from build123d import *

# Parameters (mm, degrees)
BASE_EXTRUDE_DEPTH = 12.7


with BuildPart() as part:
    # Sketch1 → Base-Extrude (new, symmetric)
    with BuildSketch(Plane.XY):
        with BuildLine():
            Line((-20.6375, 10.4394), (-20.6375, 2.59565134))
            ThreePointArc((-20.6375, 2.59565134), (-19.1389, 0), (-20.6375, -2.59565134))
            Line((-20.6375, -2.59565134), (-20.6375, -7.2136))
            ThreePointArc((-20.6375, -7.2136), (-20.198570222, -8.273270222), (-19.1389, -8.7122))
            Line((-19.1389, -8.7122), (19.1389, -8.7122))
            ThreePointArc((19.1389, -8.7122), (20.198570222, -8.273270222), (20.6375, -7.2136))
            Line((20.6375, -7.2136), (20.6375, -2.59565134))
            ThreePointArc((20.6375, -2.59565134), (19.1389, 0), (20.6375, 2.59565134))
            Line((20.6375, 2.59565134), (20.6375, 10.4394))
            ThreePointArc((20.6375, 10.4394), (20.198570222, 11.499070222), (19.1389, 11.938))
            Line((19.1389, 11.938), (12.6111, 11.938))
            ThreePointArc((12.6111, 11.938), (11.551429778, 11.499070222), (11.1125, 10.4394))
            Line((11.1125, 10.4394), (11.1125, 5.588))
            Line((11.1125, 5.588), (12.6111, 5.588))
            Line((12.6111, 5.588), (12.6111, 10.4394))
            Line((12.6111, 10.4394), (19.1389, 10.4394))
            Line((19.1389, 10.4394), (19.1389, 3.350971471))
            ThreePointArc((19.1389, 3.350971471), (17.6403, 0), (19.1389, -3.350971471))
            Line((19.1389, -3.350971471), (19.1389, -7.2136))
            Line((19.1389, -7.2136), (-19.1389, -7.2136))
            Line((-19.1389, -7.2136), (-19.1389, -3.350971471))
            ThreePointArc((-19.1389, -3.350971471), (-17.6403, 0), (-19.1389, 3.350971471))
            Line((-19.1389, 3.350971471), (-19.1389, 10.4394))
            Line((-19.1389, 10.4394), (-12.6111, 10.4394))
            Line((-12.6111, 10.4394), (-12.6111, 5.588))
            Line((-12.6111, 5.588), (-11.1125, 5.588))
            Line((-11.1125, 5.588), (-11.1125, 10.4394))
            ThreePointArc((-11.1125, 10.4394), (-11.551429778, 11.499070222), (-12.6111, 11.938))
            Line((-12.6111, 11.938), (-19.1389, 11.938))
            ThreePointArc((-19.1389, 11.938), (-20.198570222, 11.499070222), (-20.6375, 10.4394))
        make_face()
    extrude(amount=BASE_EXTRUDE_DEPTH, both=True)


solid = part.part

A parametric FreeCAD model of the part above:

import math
import FreeCAD as App
import Part
import Sketcher
Q = App.Units.Quantity

doc = App.newDocument("Part")
params = doc.addObject("Spreadsheet::Sheet", "Params")
for row, (alias, value) in enumerate([
    ("sketch1_radius", "0.118 in"),
    ("sketch1_radius2", "0.059 in"),
    ("sketch1_radius3", "0.177 in"),
    ("sketch1_width", "1.507 in"),
    ("sketch1_width2", "0.257 in"),
    ("pad1_length", "1 in"),
], start=1):
    params.set(f"A{row}", alias)
    params.set(f"B{row}", "=" + value)
    params.setAlias(f"B{row}", alias)

body = doc.addObject("PartDesign::Body", "Body")

# Sketch on XY plane
sketch1 = body.newObject("Sketcher::SketchObject", "Sketch")
sketch1.AttachmentSupport = (doc.getObject("XY_Plane"), [""])
sketch1.MapMode = "FlatFace"
sketch1.addGeometry([
    Part.LineSegment(App.Vector(-20.6, 10.4, 0), App.Vector(-20.6, 2.6, 0)),  # 0
    Part.ArcOfCircle(Part.Circle(App.Vector(-22.1, 0, 0), App.Vector(0, 0, 1), 3), math.radians(-60), math.radians(60)),  # 1
    Part.LineSegment(App.Vector(-20.6, -2.6, 0), App.Vector(-20.6, -7.2, 0)),  # 2
    Part.ArcOfCircle(Part.Circle(App.Vector(-19.1, -7.2, 0), App.Vector(0, 0, 1), 1.5), math.radians(-180), math.radians(-90)),  # 3
    Part.LineSegment(App.Vector(-19.1, -8.7, 0), App.Vector(19.1, -8.7, 0)),  # 4
    Part.ArcOfCircle(Part.Circle(App.Vector(19.1, -7.2, 0), App.Vector(0, 0, 1), 1.5), math.radians(-90), math.radians(0)),  # 5
    Part.LineSegment(App.Vector(20.6, -7.2, 0), App.Vector(20.6, -2.6, 0)),  # 6
    Part.ArcOfCircle(Part.Circle(App.Vector(22.1, 0, 0), App.Vector(0, 0, 1), 3), math.radians(120), math.radians(240)),  # 7
    Part.LineSegment(App.Vector(20.6, 2.6, 0), App.Vector(20.6, 10.4, 0)),  # 8
    Part.ArcOfCircle(Part.Circle(App.Vector(19.1, 10.4, 0), App.Vector(0, 0, 1), 1.5), math.radians(0), math.radians(90)),  # 9
    Part.LineSegment(App.Vector(19.1, 11.9, 0), App.Vector(12.6, 11.9, 0)),  # 10
    Part.ArcOfCircle(Part.Circle(App.Vector(12.6, 10.4, 0), App.Vector(0, 0, 1), 1.5), math.radians(90), math.radians(180)),  # 11
    Part.LineSegment(App.Vector(11.1, 10.4, 0), App.Vector(11.1, 5.6, 0)),  # 12
    Part.LineSegment(App.Vector(11.1, 5.6, 0), App.Vector(12.6, 5.6, 0)),  # 13
    Part.LineSegment(App.Vector(12.6, 5.6, 0), App.Vector(12.6, 10.4, 0)),  # 14
    Part.LineSegment(App.Vector(12.6, 10.4, 0), App.Vector(19.1, 10.4, 0)),  # 15
    Part.LineSegment(App.Vector(19.1, 10.4, 0), App.Vector(19.1, 3.4, 0)),  # 16
    Part.ArcOfCircle(Part.Circle(App.Vector(22.1, 0, 0), App.Vector(0, 0, 1), 4.5), math.radians(132), math.radians(228)),  # 17
    Part.LineSegment(App.Vector(19.1, -3.4, 0), App.Vector(19.1, -7.2, 0)),  # 18
    Part.LineSegment(App.Vector(19.1, -7.2, 0), App.Vector(-19.1, -7.2, 0)),  # 19
    Part.LineSegment(App.Vector(-19.1, -7.2, 0), App.Vector(-19.1, -3.4, 0)),  # 20
    Part.ArcOfCircle(Part.Circle(App.Vector(-22.1, 0, 0), App.Vector(0, 0, 1), 4.5), math.radians(-48), math.radians(48)),  # 21
    Part.LineSegment(App.Vector(-19.1, 3.4, 0), App.Vector(-19.1, 10.4, 0)),  # 22
    Part.LineSegment(App.Vector(-19.1, 10.4, 0), App.Vector(-12.6, 10.4, 0)),  # 23
    Part.LineSegment(App.Vector(-12.6, 10.4, 0), App.Vector(-12.6, 5.6, 0)),  # 24
    Part.LineSegment(App.Vector(-12.6, 5.6, 0), App.Vector(-11.1, 5.6, 0)),  # 25
    Part.LineSegment(App.Vector(-11.1, 5.6, 0), App.Vector(-11.1, 10.4, 0)),  # 26
    Part.ArcOfCircle(Part.Circle(App.Vector(-12.6, 10.4, 0), App.Vector(0, 0, 1), 1.5), math.radians(0), math.radians(90)),  # 27
    Part.LineSegment(App.Vector(-12.6, 11.9, 0), App.Vector(-19.1, 11.9, 0)),  # 28
    Part.ArcOfCircle(Part.Circle(App.Vector(-19.1, 10.4, 0), App.Vector(0, 0, 1), 1.5), math.radians(90), math.radians(180)),  # 29
], False)
sketch1.addConstraint([
    Sketcher.Constraint("Coincident", 0, 2, 1, 2),
    Sketcher.Constraint("Coincident", 1, 1, 2, 1),
    Sketcher.Constraint("Tangent", 2, 2, 3, 1),
    Sketcher.Constraint("Tangent", 3, 2, 4, 1),
    Sketcher.Constraint("Tangent", 4, 2, 5, 1),
    Sketcher.Constraint("Tangent", 5, 2, 6, 1),
    Sketcher.Constraint("Coincident", 6, 2, 7, 2),
    Sketcher.Constraint("Coincident", 7, 1, 8, 1),
    Sketcher.Constraint("Tangent", 8, 2, 9, 1),
    Sketcher.Constraint("Tangent", 9, 2, 10, 1),
    Sketcher.Constraint("Tangent", 10, 2, 11, 1),
    Sketcher.Constraint("Tangent", 11, 2, 12, 1),
    Sketcher.Constraint("Coincident", 12, 2, 13, 1),
    Sketcher.Constraint("Coincident", 13, 2, 14, 1),
    Sketcher.Constraint("Coincident", 14, 2, 15, 1),
    Sketcher.Constraint("Coincident", 15, 2, 16, 1),
    Sketcher.Constraint("Coincident", 16, 2, 17, 1),
    Sketcher.Constraint("Coincident", 17, 2, 18, 1),
    Sketcher.Constraint("Coincident", 18, 2, 19, 1),
    Sketcher.Constraint("Coincident", 19, 2, 20, 1),
    Sketcher.Constraint("Coincident", 20, 2, 21, 1),
    Sketcher.Constraint("Coincident", 21, 2, 22, 1),
    Sketcher.Constraint("Coincident", 22, 2, 23, 1),
    Sketcher.Constraint("Coincident", 23, 2, 24, 1),
    Sketcher.Constraint("Coincident", 24, 2, 25, 1),
    Sketcher.Constraint("Coincident", 25, 2, 26, 1),
    Sketcher.Constraint("Tangent", 26, 2, 27, 1),
    Sketcher.Constraint("Tangent", 27, 2, 28, 1),
    Sketcher.Constraint("Tangent", 28, 2, 29, 1),
    Sketcher.Constraint("Tangent", 29, 2, 0, 1),
    Sketcher.Constraint("Vertical", 0),
    Sketcher.Constraint("Vertical", 2),
    Sketcher.Constraint("Horizontal", 4),
    Sketcher.Constraint("Vertical", 6),
    Sketcher.Constraint("Vertical", 8),
    Sketcher.Constraint("Horizontal", 10),
    Sketcher.Constraint("Vertical", 12),
    Sketcher.Constraint("Horizontal", 13),
    Sketcher.Constraint("Vertical", 14),
    Sketcher.Constraint("Horizontal", 15),
    Sketcher.Constraint("Vertical", 16),
    Sketcher.Constraint("Vertical", 18),
    Sketcher.Constraint("Horizontal", 19),
    Sketcher.Constraint("Vertical", 20),
    Sketcher.Constraint("Vertical", 22),
    Sketcher.Constraint("Horizontal", 23),
    Sketcher.Constraint("Vertical", 24),
    Sketcher.Constraint("Horizontal", 25),
    Sketcher.Constraint("Vertical", 26),
    Sketcher.Constraint("Horizontal", 28),
    Sketcher.Constraint("Coincident", 17, 3, 7, 3),
    Sketcher.Constraint("Coincident", 21, 3, 1, 3),
    Sketcher.Constraint("Coincident", 14, 2, 11, 3),
    Sketcher.Constraint("Coincident", 15, 2, 9, 3),
    Sketcher.Constraint("Coincident", 18, 2, 5, 3),
    Sketcher.Constraint("Coincident", 19, 2, 3, 3),
    Sketcher.Constraint("Coincident", 22, 2, 29, 3),
    Sketcher.Constraint("Coincident", 23, 2, 27, 3),
    Sketcher.Constraint("Equal", 1, 7),
    Sketcher.Constraint("Equal", 5, 9),
    Sketcher.Constraint("Equal", 17, 21),
    Sketcher.Constraint("Equal", 11, 27),
    Sketcher.Constraint("Symmetric", 1, 3, 7, 3, -1, 1),
    Sketcher.Constraint("Symmetric", 11, 3, 27, 3, -2),
    Sketcher.Constraint("Symmetric", 1, 1, 6, 2, -2),
    Sketcher.Constraint("Horizontal", 0, 2, 7, 1),
    Sketcher.Constraint("Horizontal", 13, 2, 24, 2),
    Sketcher.Constraint("Vertical", 5, 3, 9, 3),
    Sketcher.Constraint("Radius", 1, Q("0.118 in")),
    Sketcher.Constraint("Radius", 3, Q("0.059 in")),
    Sketcher.Constraint("Radius", 17, Q("0.177 in")),
    Sketcher.Constraint("DistanceX", 4, 1, 4, 2, Q("1.507 in")),
    Sketcher.Constraint("DistanceX", 10, 2, 10, 1, Q("0.257 in")),
    Sketcher.Constraint("DistanceY", 12, 2, 12, 1, Q("0.191 in")),
    Sketcher.Constraint("DistanceY", -1, 1, 9, 2, Q("0.47 in")),
    Sketcher.Constraint("DistanceY", 3, 3, -1, 1, Q("0.284 in")),
    Sketcher.Constraint("DistanceX", 1, 3, 3, 3, Q("0.118 in")),
])
sketch1.setExpression("Constraints[68]", "Params.sketch1_radius")
sketch1.setExpression("Constraints[69]", "Params.sketch1_radius2")
sketch1.setExpression("Constraints[70]", "Params.sketch1_radius3")
sketch1.setExpression("Constraints[71]", "Params.sketch1_width")
sketch1.setExpression("Constraints[72]", "Params.sketch1_width2")
pad1 = body.newObject("PartDesign::Pad", "Pad")
pad1.Profile = sketch1
pad1.setExpression("Length", "Params.pad1_length")
pad1.Midplane = True

doc.recompute()
